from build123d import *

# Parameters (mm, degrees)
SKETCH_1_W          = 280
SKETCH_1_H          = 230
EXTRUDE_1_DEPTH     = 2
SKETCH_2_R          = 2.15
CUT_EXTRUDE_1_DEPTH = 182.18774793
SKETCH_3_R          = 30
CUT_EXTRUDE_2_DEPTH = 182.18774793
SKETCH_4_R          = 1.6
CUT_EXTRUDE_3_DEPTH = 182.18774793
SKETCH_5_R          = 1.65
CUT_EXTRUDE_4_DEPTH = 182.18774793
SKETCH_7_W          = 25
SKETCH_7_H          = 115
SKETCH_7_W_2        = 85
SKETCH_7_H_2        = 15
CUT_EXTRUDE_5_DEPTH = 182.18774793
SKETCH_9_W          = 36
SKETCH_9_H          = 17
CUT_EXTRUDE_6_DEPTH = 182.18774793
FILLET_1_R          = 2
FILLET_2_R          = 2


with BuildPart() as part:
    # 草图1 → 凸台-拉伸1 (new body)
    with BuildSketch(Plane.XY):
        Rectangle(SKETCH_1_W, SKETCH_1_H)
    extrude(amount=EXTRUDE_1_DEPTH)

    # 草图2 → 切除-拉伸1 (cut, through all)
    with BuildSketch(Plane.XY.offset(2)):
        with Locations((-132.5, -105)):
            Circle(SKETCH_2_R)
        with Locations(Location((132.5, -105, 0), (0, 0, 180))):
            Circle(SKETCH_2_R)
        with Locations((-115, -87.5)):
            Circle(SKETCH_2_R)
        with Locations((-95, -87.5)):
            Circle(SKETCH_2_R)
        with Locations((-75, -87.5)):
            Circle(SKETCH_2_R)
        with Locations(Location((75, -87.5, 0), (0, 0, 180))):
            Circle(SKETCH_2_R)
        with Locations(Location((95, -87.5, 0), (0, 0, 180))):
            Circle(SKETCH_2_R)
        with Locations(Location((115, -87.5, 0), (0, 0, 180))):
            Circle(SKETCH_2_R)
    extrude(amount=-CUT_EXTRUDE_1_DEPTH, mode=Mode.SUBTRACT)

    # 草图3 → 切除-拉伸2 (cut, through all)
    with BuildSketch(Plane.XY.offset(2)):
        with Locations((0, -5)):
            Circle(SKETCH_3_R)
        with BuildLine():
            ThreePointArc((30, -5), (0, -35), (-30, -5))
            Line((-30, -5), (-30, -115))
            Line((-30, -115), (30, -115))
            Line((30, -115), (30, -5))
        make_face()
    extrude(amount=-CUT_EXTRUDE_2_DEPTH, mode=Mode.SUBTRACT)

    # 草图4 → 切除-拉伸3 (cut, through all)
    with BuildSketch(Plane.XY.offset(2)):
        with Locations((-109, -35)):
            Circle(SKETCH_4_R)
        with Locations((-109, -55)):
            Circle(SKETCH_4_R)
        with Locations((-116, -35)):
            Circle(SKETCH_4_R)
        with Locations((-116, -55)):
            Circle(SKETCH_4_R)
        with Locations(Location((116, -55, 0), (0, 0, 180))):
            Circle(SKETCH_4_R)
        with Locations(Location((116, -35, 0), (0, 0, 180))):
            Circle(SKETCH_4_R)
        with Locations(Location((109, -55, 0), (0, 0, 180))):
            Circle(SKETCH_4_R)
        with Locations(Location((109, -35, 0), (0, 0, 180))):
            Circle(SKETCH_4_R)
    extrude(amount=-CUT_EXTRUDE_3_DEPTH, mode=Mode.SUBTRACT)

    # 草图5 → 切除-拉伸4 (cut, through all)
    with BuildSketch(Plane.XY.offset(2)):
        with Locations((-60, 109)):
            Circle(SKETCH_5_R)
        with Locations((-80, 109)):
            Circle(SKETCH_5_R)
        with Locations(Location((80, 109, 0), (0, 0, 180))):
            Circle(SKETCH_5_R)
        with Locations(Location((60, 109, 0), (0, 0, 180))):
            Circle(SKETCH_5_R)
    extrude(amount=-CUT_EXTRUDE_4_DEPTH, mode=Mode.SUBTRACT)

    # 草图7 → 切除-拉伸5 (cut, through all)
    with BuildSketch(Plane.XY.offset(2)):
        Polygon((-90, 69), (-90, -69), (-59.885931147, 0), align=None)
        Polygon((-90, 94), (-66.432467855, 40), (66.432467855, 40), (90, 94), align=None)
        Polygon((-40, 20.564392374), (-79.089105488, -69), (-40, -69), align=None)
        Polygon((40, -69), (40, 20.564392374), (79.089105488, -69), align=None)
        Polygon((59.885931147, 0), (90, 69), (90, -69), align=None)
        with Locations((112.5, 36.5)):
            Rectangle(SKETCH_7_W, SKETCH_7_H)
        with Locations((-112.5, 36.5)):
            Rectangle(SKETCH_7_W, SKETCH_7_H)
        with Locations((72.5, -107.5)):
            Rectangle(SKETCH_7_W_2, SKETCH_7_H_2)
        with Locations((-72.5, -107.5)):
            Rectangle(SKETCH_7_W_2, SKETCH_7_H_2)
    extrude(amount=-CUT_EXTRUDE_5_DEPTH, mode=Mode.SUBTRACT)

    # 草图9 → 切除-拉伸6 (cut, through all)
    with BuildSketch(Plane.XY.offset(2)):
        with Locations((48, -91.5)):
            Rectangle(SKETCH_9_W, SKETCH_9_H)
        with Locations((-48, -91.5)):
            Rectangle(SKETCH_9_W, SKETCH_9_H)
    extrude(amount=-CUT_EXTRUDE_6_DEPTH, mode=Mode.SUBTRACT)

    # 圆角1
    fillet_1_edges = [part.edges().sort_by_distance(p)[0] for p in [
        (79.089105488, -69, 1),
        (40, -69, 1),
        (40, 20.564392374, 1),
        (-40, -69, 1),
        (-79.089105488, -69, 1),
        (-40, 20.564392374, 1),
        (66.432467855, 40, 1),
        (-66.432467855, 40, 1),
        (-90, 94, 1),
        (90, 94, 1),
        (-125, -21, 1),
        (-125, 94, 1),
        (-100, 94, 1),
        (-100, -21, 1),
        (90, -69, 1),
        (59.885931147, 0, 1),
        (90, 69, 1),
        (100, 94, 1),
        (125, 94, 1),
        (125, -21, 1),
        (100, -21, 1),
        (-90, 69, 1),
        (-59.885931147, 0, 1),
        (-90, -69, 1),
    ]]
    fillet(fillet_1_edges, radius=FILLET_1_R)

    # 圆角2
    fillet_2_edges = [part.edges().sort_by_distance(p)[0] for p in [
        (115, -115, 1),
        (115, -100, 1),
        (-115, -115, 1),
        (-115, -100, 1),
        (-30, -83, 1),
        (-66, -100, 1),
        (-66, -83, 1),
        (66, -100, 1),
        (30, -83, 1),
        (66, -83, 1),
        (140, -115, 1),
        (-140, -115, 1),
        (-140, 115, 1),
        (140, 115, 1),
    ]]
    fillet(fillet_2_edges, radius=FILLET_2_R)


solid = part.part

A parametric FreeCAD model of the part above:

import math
import FreeCAD as App
import Part
import Sketcher
from FreeCAD import Vector


def edges_at(feature, points):
    """Names of the edges that pass closest to the given points."""
    edges = feature.Shape.Edges
    near = lambda p: min(range(len(edges)), key=lambda i: edges[i].distToShape(Part.Vertex(*p))[0])
    return sorted({f"Edge{near(p) + 1}" for p in points})

doc = App.newDocument("Part")
body = doc.addObject("PartDesign::Body", "Body")

# Sketch on XY plane
sketch1 = body.newObject("Sketcher::SketchObject", "Sketch")
sketch1.AttachmentSupport = (doc.getObject("XY_Plane"), [""])
sketch1.MapMode = "FlatFace"
sketch1.addGeometry([
    Part.LineSegment(Vector(-140, 115, 0), Vector(-140, -115, 0)),
    Part.LineSegment(Vector(-140, -115, 0), Vector(140, -115, 0)),
    Part.LineSegment(Vector(140, -115, 0), Vector(140, 115, 0)),
    Part.LineSegment(Vector(140, 115, 0), Vector(-140, 115, 0)),
], False)
sketch1.addConstraint([
    Sketcher.Constraint("Coincident", 0, 2, 1, 1),
    Sketcher.Constraint("Coincident", 1, 2, 2, 1),
    Sketcher.Constraint("Coincident", 2, 2, 3, 1),
    Sketcher.Constraint("Coincident", 3, 2, 0, 1),
    Sketcher.Constraint("Vertical", 0),
    Sketcher.Constraint("Horizontal", 1),
    Sketcher.Constraint("Vertical", 2),
    Sketcher.Constraint("Horizontal", 3),
    Sketcher.Constraint("Symmetric", 0, 2, 2, 2, -1, 1),
    Sketcher.Constraint("DistanceX", 1, 1, 1, 2, 280.0),
    Sketcher.Constraint("DistanceY", 0, 2, 0, 1, 230.0),
])
pad1 = body.newObject("PartDesign::Pad", "Pad")
pad1.Profile = sketch1
pad1.Length = 2

# Sketch on XY plane
sketch2 = body.newObject("Sketcher::SketchObject", "Sketch001")
sketch2.AttachmentSupport = (doc.getObject("XY_Plane"), [""])
sketch2.MapMode = "FlatFace"
sketch2.AttachmentOffset = App.Placement(Vector(0, 0, 2), App.Rotation())
sketch2.addGeometry([
    Part.Circle(Vector(-132.5, -105, 0), Vector(0, 0, 1), 2.15),  # 0
    Part.Circle(Vector(132.5, -105, 0), Vector(0, 0, 1), 2.15),  # 1
    Part.Circle(Vector(-115, -87.5, 0), Vector(0, 0, 1), 2.15),  # 2
    Part.Circle(Vector(-95, -87.5, 0), Vector(0, 0, 1), 2.15),  # 3
    Part.Circle(Vector(-75, -87.5, 0), Vector(0, 0, 1), 2.15),  # 4
    Part.Circle(Vector(75, -87.5, 0), Vector(0, 0, 1), 2.15),  # 5
    Part.Circle(Vector(95, -87.5, 0), Vector(0, 0, 1), 2.15),  # 6
    Part.Circle(Vector(115, -87.5, 0), Vector(0, 0, 1), 2.15),  # 7
], False)
sketch2.addConstraint([
    Sketcher.Constraint("Equal", 0, 1),
    Sketcher.Constraint("Equal", 1, 2),
    Sketcher.Constraint("Equal", 2, 3),
    Sketcher.Constraint("Equal", 3, 4),
    Sketcher.Constraint("Equal", 4, 5),
    Sketcher.Constraint("Equal", 5, 6),
    Sketcher.Constraint("Equal", 6, 7),
    Sketcher.Constraint("Symmetric", 0, 3, 1, 3, -2),
    Sketcher.Constraint("Symmetric", 4, 3, 5, 3, -2),
    Sketcher.Constraint("Symmetric", 3, 3, 6, 3, -2),
    Sketcher.Constraint("Symmetric", 2, 3, 7, 3, -2),
    Sketcher.Constraint("Horizontal", 2, 3, 3, 3),
    Sketcher.Constraint("Horizontal", 3, 3, 4, 3),
    Sketcher.Constraint("Diameter", 0, 4.3),
    Sketcher.Constraint("DistanceY", 0, 3, -1, 1, 105.0),
    Sketcher.Constraint("DistanceX", 2, 3, -1, 1, 115.0),
    Sketcher.Constraint("DistanceX", 3, 3, -1, 1, 95.0),
    Sketcher.Constraint("DistanceX", 4, 3, -1, 1, 75.0),
    Sketcher.Constraint("DistanceX", 0, 3, 1, 3, 265.0),
    Sketcher.Constraint("DistanceY", 2, 3, -1, 1, 87.5),
])
pocket1 = body.newObject("PartDesign::Pocket", "Pocket")
pocket1.Profile = sketch2
pocket1.Type = "ThroughAll"

# Sketch on XY plane
sketch3 = body.newObject("Sketcher::SketchObject", "Sketch002")
sketch3.AttachmentSupport = (doc.getObject("XY_Plane"), [""])
sketch3.MapMode = "FlatFace"
sketch3.AttachmentOffset = App.Placement(Vector(0, 0, 2), App.Rotation())
sketch3.addGeometry([
    Part.ArcOfCircle(Part.Circle(Vector(0, -5, 0), Vector(0, 0, 1), 30), math.radians(0), math.radians(180)),
    Part.LineSegment(Vector(-30, -5, 0), Vector(-30, -115, 0)),
    Part.LineSegment(Vector(-30, -115, 0), Vector(30, -115, 0)),
    Part.LineSegment(Vector(30, -115, 0), Vector(30, -5, 0)),
], False)
sketch3.addConstraint([
    Sketcher.Constraint("Tangent", 0, 2, 1, 1),
    Sketcher.Constraint("Coincident", 1, 2, 2, 1),
    Sketcher.Constraint("Coincident", 2, 2, 3, 1),
    Sketcher.Constraint("Tangent", 3, 2, 0, 1),
    Sketcher.Constraint("Vertical", 1),
    Sketcher.Constraint("Horizontal", 2),
    Sketcher.Constraint("Vertical", 3),
    Sketcher.Constraint("PointOnObject", 0, 3, -2),
    Sketcher.Constraint("Radius", 0, 30.0),
    Sketcher.Constraint("DistanceY", 1, 2, 1, 1, 110.0),
    Sketcher.Constraint("DistanceY", 0, 3, -1, 1, 5.0),
])
pocket2 = body.newObject("PartDesign::Pocket", "Pocket001")
pocket2.Profile = sketch3
pocket2.Type = "ThroughAll"

# Sketch on XY plane
sketch4 = body.newObject("Sketcher::SketchObject", "Sketch003")
sketch4.AttachmentSupport = (doc.getObject("XY_Plane"), [""])
sketch4.MapMode = "FlatFace"
sketch4.AttachmentOffset = App.Placement(Vector(0, 0, 2), App.Rotation())
sketch4.addGeometry([
    Part.Circle(Vector(-109, -35, 0), Vector(0, 0, 1), 1.6),  # 0
    Part.Circle(Vector(-109, -55, 0), Vector(0, 0, 1), 1.6),  # 1
    Part.Circle(Vector(-116, -35, 0), Vector(0, 0, 1), 1.6),  # 2
    Part.Circle(Vector(-116, -55, 0), Vector(0, 0, 1), 1.6),  # 3
    Part.Circle(Vector(116, -55, 0), Vector(0, 0, 1), 1.6),  # 4
    Part.Circle(Vector(116, -35, 0), Vector(0, 0, 1), 1.6),  # 5
    Part.Circle(Vector(109, -55, 0), Vector(0, 0, 1), 1.6),  # 6
    Part.Circle(Vector(109, -35, 0), Vector(0, 0, 1), 1.6),  # 7
], False)
sketch4.addConstraint([
    Sketcher.Constraint("Equal", 0, 1),
    Sketcher.Constraint("Equal", 1, 2),
    Sketcher.Constraint("Equal", 2, 3),
    Sketcher.Constraint("Equal", 3, 4),
    Sketcher.Constraint("Equal", 4, 5),
    Sketcher.Constraint("Equal", 5, 6),
    Sketcher.Constraint("Equal", 6, 7),
    Sketcher.Constraint("Symmetric", 3, 3, 4, 3, -2),
    Sketcher.Constraint("Symmetric", 2, 3, 5, 3, -2),
    Sketcher.Constraint("Symmetric", 1, 3, 6, 3, -2),
    Sketcher.Constraint("Symmetric", 0, 3, 7, 3, -2),
    Sketcher.Constraint("Horizontal", 0, 3, 2, 3),
    Sketcher.Constraint("Horizontal", 1, 3, 3, 3),
    Sketcher.Constraint("Vertical", 0, 3, 1, 3),
    Sketcher.Constraint("Vertical", 2, 3, 3, 3),
    Sketcher.Constraint("Diameter", 0, 3.2),
    Sketcher.Constraint("DistanceX", 0, 3, -1, 1, 109.0),
    Sketcher.Constraint("DistanceY", 0, 3, -1, 1, 35.0),
    Sketcher.Constraint("DistanceY", 1, 3, -1, 1, 55.0),
    Sketcher.Constraint("DistanceX", 2, 3, -1, 1, 116.0),
])
pocket3 = body.newObject("PartDesign::Pocket", "Pocket002")
pocket3.Profile = sketch4
pocket3.Type = "ThroughAll"

# Sketch on XY plane
sketch5 = body.newObject("Sketcher::SketchObject", "Sketch004")
sketch5.AttachmentSupport = (doc.getObject("XY_Plane"), [""])
sketch5.MapMode = "FlatFace"
sketch5.AttachmentOffset = App.Placement(Vector(0, 0, 2), App.Rotation())
sketch5.addGeometry([
    Part.Circle(Vector(-60, 109, 0), Vector(0, 0, 1), 1.65),
    Part.Circle(Vector(-80, 109, 0), Vector(0, 0, 1), 1.65),
    Part.Circle(Vector(80, 109, 0), Vector(0, 0, 1), 1.65),
    Part.Circle(Vector(60, 109, 0), Vector(0, 0, 1), 1.65),
], False)
sketch5.addConstraint([
    Sketcher.Constraint("Equal", 0, 1),
    Sketcher.Constraint("Equal", 1, 2),
    Sketcher.Constraint("Equal", 2, 3),
    Sketcher.Constraint("Symmetric", 1, 3, 2, 3, -2),
    Sketcher.Constraint("Symmetric", 0, 3, 3, 3, -2),
    Sketcher.Constraint("Horizontal", 0, 3, 1, 3),
    Sketcher.Constraint("Diameter", 0, 3.3),
    Sketcher.Constraint("DistanceX", 0, 3, -1, 1, 60.0),
    Sketcher.Constraint("DistanceY", -1, 1, 0, 3, 109.0),
    Sketcher.Constraint("DistanceX", 1, 3, -1, 1, 80.0),
])
pocket4 = body.newObject("PartDesign::Pocket", "Pocket003")
pocket4.Profile = sketch5
pocket4.Type = "ThroughAll"

# Sketch on XY plane
sketch6 = body.newObject("Sketcher::SketchObject", "Sketch005")
sketch6.AttachmentSupport = (doc.getObject("XY_Plane"), [""])
sketch6.MapMode = "FlatFace"
sketch6.AttachmentOffset = App.Placement(Vector(0, 0, 2), App.Rotation())
sketch6.addGeometry([
    Part.LineSegment(Vector(-90, 69, 0), Vector(-90, -69, 0)),  # 0
    Part.LineSegment(Vector(-90, -69, 0), Vector(-59.885931, 0, 0)),  # 1
    Part.LineSegment(Vector(-59.885931, 0, 0), Vector(-90, 69, 0)),  # 2
    Part.LineSegment(Vector(-90, 94, 0), Vector(-66.432468, 40, 0)),  # 3
    Part.LineSegment(Vector(-66.432468, 40, 0), Vector(66.432468, 40, 0)),  # 4
    Part.LineSegment(Vector(66.432468, 40, 0), Vector(90, 94, 0)),  # 5
    Part.LineSegment(Vector(90, 94, 0), Vector(-90, 94, 0)),  # 6
    Part.LineSegment(Vector(-40, 20.564392, 0), Vector(-79.089105, -69, 0)),  # 7
    Part.LineSegment(Vector(-79.089105, -69, 0), Vector(-40, -69, 0)),  # 8
    Part.LineSegment(Vector(-40, -69, 0), Vector(-40, 20.564392, 0)),  # 9
    Part.LineSegment(Vector(40, 20.564392, 0), Vector(40, -69, 0)),  # 10
    Part.LineSegment(Vector(40, -69, 0), Vector(79.089105, -69, 0)),  # 11
    Part.LineSegment(Vector(79.089105, -69, 0), Vector(40, 20.564392, 0)),  # 12
    Part.LineSegment(Vector(90, 69, 0), Vector(59.885931, 0, 0)),  # 13
    Part.LineSegment(Vector(59.885931, 0, 0), Vector(90, -69, 0)),  # 14
    Part.LineSegment(Vector(90, -69, 0), Vector(90, 69, 0)),  # 15
    Part.LineSegment(Vector(100, 94, 0), Vector(100, -21, 0)),  # 16
    Part.LineSegment(Vector(100, -21, 0), Vector(125, -21, 0)),  # 17
    Part.LineSegment(Vector(125, -21, 0), Vector(125, 94, 0)),  # 18
    Part.LineSegment(Vector(125, 94, 0), Vector(100, 94, 0)),  # 19
    Part.LineSegment(Vector(-125, 94, 0), Vector(-125, -21, 0)),  # 20
    Part.LineSegment(Vector(-125, -21, 0), Vector(-100, -21, 0)),  # 21
    Part.LineSegment(Vector(-100, -21, 0), Vector(-100, 94, 0)),  # 22
    Part.LineSegment(Vector(-100, 94, 0), Vector(-125, 94, 0)),  # 23
    Part.LineSegment(Vector(30, -100, 0), Vector(30, -115, 0)),  # 24
    Part.LineSegment(Vector(30, -115, 0), Vector(115, -115, 0)),  # 25
    Part.LineSegment(Vector(115, -115, 0), Vector(115, -100, 0)),  # 26
    Part.LineSegment(Vector(115, -100, 0), Vector(30, -100, 0)),  # 27
    Part.LineSegment(Vector(-115, -100, 0), Vector(-115, -115, 0)),  # 28
    Part.LineSegment(Vector(-115, -115, 0), Vector(-30, -115, 0)),  # 29
    Part.LineSegment(Vector(-30, -115, 0), Vector(-30, -100, 0)),  # 30
    Part.LineSegment(Vector(-30, -100, 0), Vector(-115, -100, 0)),  # 31
], False)
sketch6.addConstraint([
    Sketcher.Constraint("Coincident", 0, 2, 1, 1),
    Sketcher.Constraint("Coincident", 1, 2, 2, 1),
    Sketcher.Constraint("Coincident", 2, 2, 0, 1),
    Sketcher.Constraint("Coincident", 3, 2, 4, 1),
    Sketcher.Constraint("Coincident", 4, 2, 5, 1),
    Sketcher.Constraint("Coincident", 5, 2, 6, 1),
    Sketcher.Constraint("Coincident", 6, 2, 3, 1),
    Sketcher.Constraint("Coincident", 7, 2, 8, 1),
    Sketcher.Constraint("Coincident", 8, 2, 9, 1),
    Sketcher.Constraint("Coincident", 9, 2, 7, 1),
    Sketcher.Constraint("Coincident", 10, 2, 11, 1),
    Sketcher.Constraint("Coincident", 11, 2, 12, 1),
    Sketcher.Constraint("Coincident", 12, 2, 10, 1),
    Sketcher.Constraint("Coincident", 13, 2, 14, 1),
    Sketcher.Constraint("Coincident", 14, 2, 15, 1),
    Sketcher.Constraint("Coincident", 15, 2, 13, 1),
    Sketcher.Constraint("Coincident", 16, 2, 17, 1),
    Sketcher.Constraint("Coincident", 17, 2, 18, 1),
    Sketcher.Constraint("Coincident", 18, 2, 19, 1),
    Sketcher.Constraint("Coincident", 19, 2, 16, 1),
    Sketcher.Constraint("Coincident", 20, 2, 21, 1),
    Sketcher.Constraint("Coincident", 21, 2, 22, 1),
    Sketcher.Constraint("Coincident", 22, 2, 23, 1),
    Sketcher.Constraint("Coincident", 23, 2, 20, 1),
    Sketcher.Constraint("Coincident", 24, 2, 25, 1),
    Sketcher.Constraint("Coincident", 25, 2, 26, 1),
    Sketcher.Constraint("Coincident", 26, 2, 27, 1),
    Sketcher.Constraint("Coincident", 27, 2, 24, 1),
    Sketcher.Constraint("Coincident", 28, 2, 29, 1),
    Sketcher.Constraint("Coincident", 29, 2, 30, 1),
    Sketcher.Constraint("Coincident", 30, 2, 31, 1),
    Sketcher.Constraint("Coincident", 31, 2, 28, 1),
    Sketcher.Constraint("Vertical", 0),
    Sketcher.Constraint("Horizontal", 4),
    Sketcher.Constraint("Horizontal", 6),
    Sketcher.Constraint("Horizontal", 8),
    Sketcher.Constraint("Vertical", 9),
    Sketcher.Constraint("Vertical", 10),
    Sketcher.Constraint("Horizontal", 11),
    Sketcher.Constraint("Vertical", 15),
    Sketcher.Constraint("Vertical", 16),
    Sketcher.Constraint("Horizontal", 17),
    Sketcher.Constraint("Vertical", 18),
    Sketcher.Constraint("Horizontal", 19),
    Sketcher.Constraint("Vertical", 20),
    Sketcher.Constraint("Horizontal", 21),
    Sketcher.Constraint("Vertical", 22),
    Sketcher.Constraint("Horizontal", 23),
    Sketcher.Constraint("Vertical", 24),
    Sketcher.Constraint("Horizontal", 25),
    Sketcher.Constraint("Vertical", 26),
    Sketcher.Constraint("Horizontal", 27),
    Sketcher.Constraint("Vertical", 28),
    Sketcher.Constraint("Horizontal", 29),
    Sketcher.Constraint("Vertical", 30),
    Sketcher.Constraint("Horizontal", 31),
    Sketcher.Constraint("Symmetric", 1, 2, 13, 2, -1, 1),
    Sketcher.Constraint("Symmetric", 2, 2, 14, 2, -1, 1),
    Sketcher.Constraint("Symmetric", 8, 2, 10, 2, -2),
    Sketcher.Constraint("Symmetric", 17, 2, 20, 2, -2),
    Sketcher.Constraint("Symmetric", 19, 2, 22, 2, -2),
    Sketcher.Constraint("Symmetric", 25, 2, 28, 2, -2),
    Sketcher.Constraint("Symmetric", 27, 2, 30, 2, -2),
    Sketcher.Constraint("PointOnObject", 1, 2, -1),
    Sketcher.Constraint("Parallel", 2, 3),
    Sketcher.Constraint("Parallel", 1, 5),
    Sketcher.Constraint("Parallel", 5, 7),
    Sketcher.Constraint("Parallel", 3, 12),
    Sketcher.Constraint("Parallel", 7, 13),
    Sketcher.Constraint("Horizontal", 0, 2, 7, 2),
    Sketcher.Constraint("Horizontal", 9, 2, 12, 2),
    Sketcher.Constraint("Horizontal", 11, 2, 14, 2),
    Sketcher.Constraint("Horizontal", 6, 2, 18, 2),
    Sketcher.Constraint("Vertical", 2, 2, 6, 2),
    Sketcher.Constraint("Vertical", 5, 2, 14, 2),
    Sketcher.Constraint("DistanceX", 6, 2, 6, 1, 180.0),
    Sketcher.Constraint("DistanceX", 17, 1, 17, 2, 25.0),
    Sketcher.Constraint("DistanceX", 25, 1, 25, 2, 85.0),
    Sketcher.Constraint("DistanceY", 0, 2, 0, 1, 138.0),
    Sketcher.Constraint("DistanceY", 16, 2, 16, 1, 115.0),
    Sketcher.Constraint("DistanceY", 24, 2, 24, 1, 15.0),
    Sketcher.Constraint("DistanceY", -1, 1, 3, 2, 40.0),
    Sketcher.Constraint("DistanceY", -1, 1, 5, 2, 94.0),
    Sketcher.Constraint("DistanceX", 8, 2, -1, 1, 40.0),
    Sketcher.Constraint("DistanceX", -1, 1, 16, 2, 100.0),
    Sketcher.Constraint("DistanceX", -1, 1, 24, 2, 30.0),
    Sketcher.Constraint("DistanceY", 24, 2, -1, 1, 115.0),
    Sketcher.Constraint("DistanceX", 1, 2, 4, 2, 126.318399),
    Sketcher.Constraint("DistanceX", 8, 1, 8, 2, 39.089105),
])
pocket5 = body.newObject("PartDesign::Pocket", "Pocket004")
pocket5.Profile = sketch6
pocket5.Type = "ThroughAll"

# Sketch on XY plane
sketch7 = body.newObject("Sketcher::SketchObject", "Sketch006")
sketch7.AttachmentSupport = (doc.getObject("XY_Plane"), [""])
sketch7.MapMode = "FlatFace"
sketch7.AttachmentOffset = App.Placement(Vector(0, 0, 2), App.Rotation())
sketch7.addGeometry([
    Part.LineSegment(Vector(30, -83, 0), Vector(30, -100, 0)),  # 0
    Part.LineSegment(Vector(30, -100, 0), Vector(66, -100, 0)),  # 1
    Part.LineSegment(Vector(66, -100, 0), Vector(66, -83, 0)),  # 2
    Part.LineSegment(Vector(66, -83, 0), Vector(30, -83, 0)),  # 3
    Part.LineSegment(Vector(-66, -83, 0), Vector(-66, -100, 0)),  # 4
    Part.LineSegment(Vector(-66, -100, 0), Vector(-30, -100, 0)),  # 5
    Part.LineSegment(Vector(-30, -100, 0), Vector(-30, -83, 0)),  # 6
    Part.LineSegment(Vector(-30, -83, 0), Vector(-66, -83, 0)),  # 7
], False)
sketch7.addConstraint([
    Sketcher.Constraint("Coincident", 0, 2, 1, 1),
    Sketcher.Constraint("Coincident", 1, 2, 2, 1),
    Sketcher.Constraint("Coincident", 2, 2, 3, 1),
    Sketcher.Constraint("Coincident", 3, 2, 0, 1),
    Sketcher.Constraint("Coincident", 4, 2, 5, 1),
    Sketcher.Constraint("Coincident", 5, 2, 6, 1),
    Sketcher.Constraint("Coincident", 6, 2, 7, 1),
    Sketcher.Constraint("Coincident", 7, 2, 4, 1),
    Sketcher.Constraint("Vertical", 0),
    Sketcher.Constraint("Horizontal", 1),
    Sketcher.Constraint("Vertical", 2),
    Sketcher.Constraint("Horizontal", 3),
    Sketcher.Constraint("Vertical", 4),
    Sketcher.Constraint("Horizontal", 5),
    Sketcher.Constraint("Vertical", 6),
    Sketcher.Constraint("Horizontal", 7),
    Sketcher.Constraint("Symmetric", 1, 2, 4, 2, -2),
    Sketcher.Constraint("Symmetric", 3, 2, 6, 2, -2),
    Sketcher.Constraint("DistanceX", 1, 1, 1, 2, 36.0),
    Sketcher.Constraint("DistanceY", 0, 2, 0, 1, 17.0),
    Sketcher.Constraint("DistanceX", -1, 1, 0, 2, 30.0),
    Sketcher.Constraint("DistanceY", 0, 2, -1, 1, 100.0),
])
pocket6 = body.newObject("PartDesign::Pocket", "Pocket005")
pocket6.Profile = sketch7
pocket6.Type = "ThroughAll"
doc.recompute()

fillet = body.newObject("PartDesign::Fillet", "Fillet")
fillet.Base = (pocket6, edges_at(pocket6, [
    (79.089, -69, 1),
    (40, -69, 1),
    (40, 20.564, 1),
    (-40, -69, 1),
    (-79.089, -69, 1),
    (-40, 20.564, 1),
    (66.432, 40, 1),
    (-66.432, 40, 1),
    (-90, 94, 1),
    (90, 94, 1),
    (-125, -21, 1),
    (-125, 94, 1),
    (-100, 94, 1),
    (-100, -21, 1),
    (90, -69, 1),
    (59.886, 0, 1),
    (90, 69, 1),
    (100, 94, 1),
    (125, 94, 1),
    (125, -21, 1),
    (100, -21, 1),
    (-90, 69, 1),
    (-59.886, 0, 1),
    (-90, -69, 1),
]))
fillet.Radius = 2
doc.recompute()

fillet2 = body.newObject("PartDesign::Fillet", "Fillet001")
fillet2.Base = (fillet, edges_at(fillet, [
    (115, -115, 1),
    (115, -100, 1),
    (-115, -115, 1),
    (-115, -100, 1),
    (-30, -83, 1),
    (-66, -100, 1),
    (-66, -83, 1),
    (66, -100, 1),
    (30, -83, 1),
    (66, -83, 1),
    (140, -115, 1),
    (-140, -115, 1),
    (-140, 115, 1),
    (140, 115, 1),
]))
fillet2.Radius = 2

doc.recompute()
